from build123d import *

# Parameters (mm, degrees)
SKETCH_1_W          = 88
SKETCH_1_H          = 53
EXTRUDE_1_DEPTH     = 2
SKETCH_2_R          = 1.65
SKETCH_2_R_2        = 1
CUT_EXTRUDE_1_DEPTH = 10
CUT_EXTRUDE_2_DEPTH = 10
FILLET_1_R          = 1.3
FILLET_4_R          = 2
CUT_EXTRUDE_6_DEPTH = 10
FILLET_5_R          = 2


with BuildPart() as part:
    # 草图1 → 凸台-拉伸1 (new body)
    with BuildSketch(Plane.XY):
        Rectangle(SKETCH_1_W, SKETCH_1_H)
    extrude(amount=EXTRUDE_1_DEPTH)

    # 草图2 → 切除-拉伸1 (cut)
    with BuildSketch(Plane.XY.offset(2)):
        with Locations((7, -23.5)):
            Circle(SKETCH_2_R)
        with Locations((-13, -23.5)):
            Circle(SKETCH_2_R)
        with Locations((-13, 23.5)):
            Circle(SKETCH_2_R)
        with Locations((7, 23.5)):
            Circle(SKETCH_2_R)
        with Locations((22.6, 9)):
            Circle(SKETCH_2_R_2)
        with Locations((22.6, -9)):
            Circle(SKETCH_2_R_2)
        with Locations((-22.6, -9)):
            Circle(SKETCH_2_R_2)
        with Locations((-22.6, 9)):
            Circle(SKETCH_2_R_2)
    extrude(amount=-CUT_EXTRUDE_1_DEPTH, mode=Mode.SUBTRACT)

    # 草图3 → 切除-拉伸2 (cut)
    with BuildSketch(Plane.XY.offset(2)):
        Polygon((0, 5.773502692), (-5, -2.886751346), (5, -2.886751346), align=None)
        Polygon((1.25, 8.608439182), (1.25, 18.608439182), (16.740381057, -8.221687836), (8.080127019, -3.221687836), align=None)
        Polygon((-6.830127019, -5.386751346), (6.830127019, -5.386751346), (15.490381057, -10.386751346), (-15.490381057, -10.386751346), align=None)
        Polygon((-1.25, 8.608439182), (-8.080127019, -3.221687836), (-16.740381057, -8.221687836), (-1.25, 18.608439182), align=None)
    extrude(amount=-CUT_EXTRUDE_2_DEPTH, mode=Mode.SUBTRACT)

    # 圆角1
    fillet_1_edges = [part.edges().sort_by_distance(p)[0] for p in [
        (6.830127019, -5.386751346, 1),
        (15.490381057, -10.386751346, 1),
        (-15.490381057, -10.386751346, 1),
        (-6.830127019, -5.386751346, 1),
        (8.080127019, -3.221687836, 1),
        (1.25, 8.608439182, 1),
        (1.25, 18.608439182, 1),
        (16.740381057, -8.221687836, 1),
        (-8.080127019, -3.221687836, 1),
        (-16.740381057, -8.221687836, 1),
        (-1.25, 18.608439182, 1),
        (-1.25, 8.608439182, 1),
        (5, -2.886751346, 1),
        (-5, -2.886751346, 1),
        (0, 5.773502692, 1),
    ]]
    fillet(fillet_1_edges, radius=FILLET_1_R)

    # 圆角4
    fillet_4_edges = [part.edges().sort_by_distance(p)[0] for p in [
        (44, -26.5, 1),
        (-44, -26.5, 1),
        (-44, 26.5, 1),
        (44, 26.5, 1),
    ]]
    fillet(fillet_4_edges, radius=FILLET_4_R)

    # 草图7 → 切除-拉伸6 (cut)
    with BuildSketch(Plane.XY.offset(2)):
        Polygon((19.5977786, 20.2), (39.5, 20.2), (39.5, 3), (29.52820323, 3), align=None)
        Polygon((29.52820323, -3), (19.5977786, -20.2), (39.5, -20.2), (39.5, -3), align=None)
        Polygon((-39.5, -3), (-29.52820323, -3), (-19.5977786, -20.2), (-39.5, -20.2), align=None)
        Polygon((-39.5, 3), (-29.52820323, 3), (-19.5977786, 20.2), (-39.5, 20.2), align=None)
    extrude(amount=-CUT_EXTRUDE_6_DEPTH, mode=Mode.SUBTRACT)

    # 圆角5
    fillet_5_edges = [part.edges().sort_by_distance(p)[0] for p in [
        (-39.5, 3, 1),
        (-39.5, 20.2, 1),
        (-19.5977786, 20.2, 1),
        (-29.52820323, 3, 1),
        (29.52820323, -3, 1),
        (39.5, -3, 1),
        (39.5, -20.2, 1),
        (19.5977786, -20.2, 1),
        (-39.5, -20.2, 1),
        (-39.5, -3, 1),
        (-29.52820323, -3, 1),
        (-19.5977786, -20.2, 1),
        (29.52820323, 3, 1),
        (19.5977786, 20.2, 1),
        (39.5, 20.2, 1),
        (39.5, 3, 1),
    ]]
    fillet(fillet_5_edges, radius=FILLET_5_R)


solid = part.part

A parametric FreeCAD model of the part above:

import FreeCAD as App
import Part
import Sketcher
Q = App.Units.Quantity


def edges_at(feature, points):
    """Names of the edges that pass closest to the given points."""
    edges = feature.Shape.Edges
    near = lambda p: min(range(len(edges)), key=lambda i: edges[i].distToShape(Part.Vertex(*p))[0])
    return sorted({f"Edge{near(p) + 1}" for p in points})

doc = App.newDocument("Part")
params = doc.addObject("Spreadsheet::Sheet", "Params")
for row, (alias, value) in enumerate([
    ("sketch1_width", "88 mm"),
    ("sketch1_height", "53 mm"),
    ("pad1_length", "2 mm"),
    ("sketch2_diameter", "2 mm"),
    ("sketch2_diameter2", "3.3 mm"),
    ("pocket1_length", "10 mm"),
    ("sketch3_width", "10 mm"),
    ("pocket2_length", "10 mm"),
    ("fillet_radius", "1.3 mm"),
    ("fillet2_radius", "2 mm"),
    ("sketch4_height", "17.2 mm"),
    ("pocket3_length", "10 mm"),
    ("fillet3_radius", "2 mm"),
], start=1):
    params.set(f"A{row}", alias)
    params.set(f"B{row}", "=" + value)
    params.setAlias(f"B{row}", alias)

body = doc.addObject("PartDesign::Body", "Body")

# Sketch on XY plane
sketch1 = doc.addObject("Sketcher::SketchObject", "Sketch")
body.addObject(sketch1)
sketch1.AttachmentSupport = (doc.XY_Plane, [""])
sketch1.MapMode = "FlatFace"
sketch1.addGeometry([
    Part.LineSegment(App.Vector(-44, 26, 0), App.Vector(-44, -26, 0)),
    Part.LineSegment(App.Vector(-44, -26, 0), App.Vector(44, -26, 0)),
    Part.LineSegment(App.Vector(44, -26, 0), App.Vector(44, 26, 0)),
    Part.LineSegment(App.Vector(44, 26, 0), App.Vector(-44, 26, 0)),
], False)
sketch1.addConstraint([
    Sketcher.Constraint("Coincident", 0, 2, 1, 1),
    Sketcher.Constraint("Coincident", 1, 2, 2, 1),
    Sketcher.Constraint("Coincident", 2, 2, 3, 1),
    Sketcher.Constraint("Coincident", 3, 2, 0, 1),
    Sketcher.Constraint("Vertical", 0),
    Sketcher.Constraint("Horizontal", 1),
    Sketcher.Constraint("Vertical", 2),
    Sketcher.Constraint("Horizontal", 3),
    Sketcher.Constraint("Symmetric", 0, 2, 2, 2, -1, 1),
    Sketcher.Constraint("DistanceX", 1, 1, 1, 2, Q("88 mm")),
    Sketcher.Constraint("DistanceY", 0, 2, 0, 1, Q("53 mm")),
])
sketch1.setExpression("Constraints[9]", "Params.sketch1_width")
sketch1.setExpression("Constraints[10]", "Params.sketch1_height")
pad1 = doc.addObject("PartDesign::Pad", "Pad")
body.addObject(pad1)
pad1.Profile = sketch1
pad1.setExpression("Length", "Params.pad1_length")

# Sketch on XY plane
sketch2 = doc.addObject("Sketcher::SketchObject", "Sketch001")
body.addObject(sketch2)
sketch2.AttachmentSupport = (doc.XY_Plane, [""])
sketch2.MapMode = "FlatFace"
sketch2.AttachmentOffset = App.Placement(App.Vector(0, 0, 2), App.Rotation())
sketch2.addGeometry([
    Part.Circle(App.Vector(7, -23.5, 0), App.Vector(0, 0, 1), 1.6),  # 0
    Part.Circle(App.Vector(-13, -23.5, 0), App.Vector(0, 0, 1), 1.6),  # 1
    Part.Circle(App.Vector(-13, 23.5, 0), App.Vector(0, 0, 1), 1.6),  # 2
    Part.Circle(App.Vector(7, 23.5, 0), App.Vector(0, 0, 1), 1.6),  # 3
    Part.Circle(App.Vector(22.6, 9, 0), App.Vector(0, 0, 1), 1),  # 4
    Part.Circle(App.Vector(22.6, -9, 0), App.Vector(0, 0, 1), 1),  # 5
    Part.Circle(App.Vector(-22.6, -9, 0), App.Vector(0, 0, 1), 1),  # 6
    Part.Circle(App.Vector(-22.6, 9, 0), App.Vector(0, 0, 1), 1),  # 7
], False)
sketch2.addConstraint([
    Sketcher.Constraint("Equal", 0, 1),
    Sketcher.Constraint("Equal", 1, 2),
    Sketcher.Constraint("Equal", 2, 3),
    Sketcher.Constraint("Equal", 4, 5),
    Sketcher.Constraint("Equal", 5, 6),
    Sketcher.Constraint("Equal", 6, 7),
    Sketcher.Constraint("Symmetric", 4, 3, 6, 3, -1, 1),
    Sketcher.Constraint("Symmetric", 5, 3, 7, 3, -1, 1),
    Sketcher.Constraint("Symmetric", 5, 3, 6, 3, -2),
    Sketcher.Constraint("Symmetric", 1, 3, 2, 3, -1),
    Sketcher.Constraint("Symmetric", 0, 3, 3, 3, -1),
    Sketcher.Constraint("Horizontal", 0, 3, 1, 3),
    Sketcher.Constraint("Diameter", 4, Q("2 mm")),
    Sketcher.Constraint("Diameter", 0, Q("3.3 mm")),
    Sketcher.Constraint("DistanceX", -1, 1, 0, 3, Q("7 mm")),
    Sketcher.Constraint("DistanceX", 1, 3, -1, 1, Q("13 mm")),
    Sketcher.Constraint("DistanceY", -1, 1, 4, 3, Q("9 mm")),
    Sketcher.Constraint("DistanceY", 1, 3, 2, 3, Q("47 mm")),
    Sketcher.Constraint("DistanceX", -1, 1, 4, 3, Q("22.6 mm")),
])
sketch2.setExpression("Constraints[12]", "Params.sketch2_diameter")
sketch2.setExpression("Constraints[13]", "Params.sketch2_diameter2")
pocket1 = doc.addObject("PartDesign::Pocket", "Pocket")
body.addObject(pocket1)
pocket1.Profile = sketch2
pocket1.setExpression("Length", "Params.pocket1_length")

# Sketch on XY plane
sketch3 = doc.addObject("Sketcher::SketchObject", "Sketch002")
body.addObject(sketch3)
sketch3.AttachmentSupport = (doc.XY_Plane, [""])
sketch3.MapMode = "FlatFace"
sketch3.AttachmentOffset = App.Placement(App.Vector(0, 0, 2), App.Rotation())
sketch3.addGeometry([
    Part.LineSegment(App.Vector(0, 6, 0), App.Vector(-5, -3, 0)),  # 0
    Part.LineSegment(App.Vector(-5, -3, 0), App.Vector(5, -3, 0)),  # 1
    Part.LineSegment(App.Vector(5, -3, 0), App.Vector(0, 6, 0)),  # 2
    Part.LineSegment(App.Vector(1, 19, 0), App.Vector(1, 9, 0)),  # 3
    Part.LineSegment(App.Vector(1, 9, 0), App.Vector(8, -3, 0)),  # 4
    Part.LineSegment(App.Vector(8, -3, 0), App.Vector(17, -8, 0)),  # 5
    Part.LineSegment(App.Vector(17, -8, 0), App.Vector(1, 19, 0)),  # 6
    Part.LineSegment(App.Vector(7, -5, 0), App.Vector(-7, -5, 0)),  # 7
    Part.LineSegment(App.Vector(-7, -5, 0), App.Vector(-15, -10, 0)),  # 8
    Part.LineSegment(App.Vector(-15, -10, 0), App.Vector(15, -10, 0)),  # 9
    Part.LineSegment(App.Vector(15, -10, 0), App.Vector(7, -5, 0)),  # 10
    Part.LineSegment(App.Vector(-8, -3, 0), App.Vector(-1, 9, 0)),  # 11
    Part.LineSegment(App.Vector(-1, 9, 0), App.Vector(-1, 19, 0)),  # 12
    Part.LineSegment(App.Vector(-1, 19, 0), App.Vector(-17, -8, 0)),  # 13
    Part.LineSegment(App.Vector(-17, -8, 0), App.Vector(-8, -3, 0)),  # 14
], False)
sketch3.addConstraint([
    Sketcher.Constraint("Coincident", 0, 2, 1, 1),
    Sketcher.Constraint("Coincident", 1, 2, 2, 1),
    Sketcher.Constraint("Coincident", 2, 2, 0, 1),
    Sketcher.Constraint("Coincident", 3, 2, 4, 1),
    Sketcher.Constraint("Coincident", 4, 2, 5, 1),
    Sketcher.Constraint("Coincident", 5, 2, 6, 1),
    Sketcher.Constraint("Coincident", 6, 2, 3, 1),
    Sketcher.Constraint("Coincident", 7, 2, 8, 1),
    Sketcher.Constraint("Coincident", 8, 2, 9, 1),
    Sketcher.Constraint("Coincident", 9, 2, 10, 1),
    Sketcher.Constraint("Coincident", 10, 2, 7, 1),
    Sketcher.Constraint("Coincident", 11, 2, 12, 1),
    Sketcher.Constraint("Coincident", 12, 2, 13, 1),
    Sketcher.Constraint("Coincident", 13, 2, 14, 1),
    Sketcher.Constraint("Coincident", 14, 2, 11, 1),
    Sketcher.Constraint("Horizontal", 1),
    Sketcher.Constraint("Vertical", 3),
    Sketcher.Constraint("Horizontal", 7),
    Sketcher.Constraint("Horizontal", 9),
    Sketcher.Constraint("Vertical", 12),
    Sketcher.Constraint("Symmetric", 3, 2, 11, 2, -2),
    Sketcher.Constraint("Symmetric", 5, 2, 13, 2, -2),
    Sketcher.Constraint("Symmetric", 4, 2, 14, 2, -2),
    Sketcher.Constraint("PointOnObject", 2, 2, -2),
    Sketcher.Constraint("Parallel", 2, 4),
    Sketcher.Constraint("Perpendicular", 0, 5),
    Sketcher.Constraint("Parallel", 4, 6),
    Sketcher.Constraint("Perpendicular", 6, 8),
    Sketcher.Constraint("Parallel", 5, 10),
    Sketcher.Constraint("Perpendicular", 10, 11),
    Sketcher.Constraint("Parallel", 11, 13),
    Sketcher.Constraint("Equal", 1, 3),
    Sketcher.Constraint("Equal", 2, 5),
    Sketcher.Constraint("Equal", 5, 8),
    Sketcher.Constraint("DistanceX", 1, 1, 1, 2, Q("10 mm")),
    Sketcher.Constraint("DistanceY", 7, 2, 0, 2, Q("2.5 mm")),
    Sketcher.Constraint("DistanceX", 11, 2, 3, 2, Q("2.5 mm")),
    Sketcher.Constraint("DistanceX", 9, 2, 5, 2, Q("1.25 mm")),
    Sketcher.Constraint("DistanceX", 13, 2, 8, 2, Q("1.25 mm")),
    Sketcher.Constraint("DistanceX", 7, 2, 7, 1, Q("13.660254 mm")),
    Sketcher.Constraint("DistanceY", 0, 2, -1, 1, Q("2.886751 mm")),
    Sketcher.Constraint("DistanceY", -1, 1, 3, 2, Q("8.608439 mm")),
])
sketch3.setExpression("Constraints[34]", "Params.sketch3_width")
pocket2 = doc.addObject("PartDesign::Pocket", "Pocket001")
body.addObject(pocket2)
pocket2.Profile = sketch3
pocket2.setExpression("Length", "Params.pocket2_length")
doc.recompute()

fillet = doc.addObject("PartDesign::Fillet", "Fillet")
body.addObject(fillet)
fillet.Base = (pocket2, edges_at(pocket2, [
    (6.83, -5.387, 1),
    (15.49, -10.387, 1),
    (-15.49, -10.387, 1),
    (-6.83, -5.387, 1),
    (8.08, -3.222, 1),
    (1.25, 8.608, 1),
    (1.25, 18.608, 1),
    (16.74, -8.222, 1),
    (-8.08, -3.222, 1),
    (-16.74, -8.222, 1),
    (-1.25, 18.608, 1),
    (-1.25, 8.608, 1),
    (5, -2.887, 1),
    (-5, -2.887, 1),
    (0, 5.774, 1),
]))
fillet.setExpression("Radius", "Params.fillet_radius")
doc.recompute()

fillet2 = doc.addObject("PartDesign::Fillet", "Fillet001")
body.addObject(fillet2)
fillet2.Base = (fillet, edges_at(fillet, [
    (44, -26.5, 1),
    (-44, -26.5, 1),
    (-44, 26.5, 1),
    (44, 26.5, 1),
]))
fillet2.setExpression("Radius", "Params.fillet2_radius")

# Sketch on XY plane
sketch4 = doc.addObject("Sketcher::SketchObject", "Sketch003")
body.addObject(sketch4)
sketch4.AttachmentSupport = (doc.XY_Plane, [""])
sketch4.MapMode = "FlatFace"
sketch4.AttachmentOffset = App.Placement(App.Vector(0, 0, 2), App.Rotation())
sketch4.addGeometry([
    Part.LineSegment(App.Vector(40, 20, 0), App.Vector(20, 20, 0)),  # 0
    Part.LineSegment(App.Vector(20, 20, 0), App.Vector(30, 3, 0)),  # 1
    Part.LineSegment(App.Vector(30, 3, 0), App.Vector(40, 3, 0)),  # 2
    Part.LineSegment(App.Vector(40, 3, 0), App.Vector(40, 20, 0)),  # 3
    Part.LineSegment(App.Vector(30, -3, 0), App.Vector(20, -20, 0)),  # 4
    Part.LineSegment(App.Vector(20, -20, 0), App.Vector(40, -20, 0)),  # 5
    Part.LineSegment(App.Vector(40, -20, 0), App.Vector(40, -3, 0)),  # 6
    Part.LineSegment(App.Vector(40, -3, 0), App.Vector(30, -3, 0)),  # 7
    Part.LineSegment(App.Vector(-30, -3, 0), App.Vector(-40, -3, 0)),  # 8
    Part.LineSegment(App.Vector(-40, -3, 0), App.Vector(-40, -20, 0)),  # 9
    Part.LineSegment(App.Vector(-40, -20, 0), App.Vector(-20, -20, 0)),  # 10
    Part.LineSegment(App.Vector(-20, -20, 0), App.Vector(-30, -3, 0)),  # 11
    Part.LineSegment(App.Vector(-40, 3, 0), App.Vector(-30, 3, 0)),  # 12
    Part.LineSegment(App.Vector(-30, 3, 0), App.Vector(-20, 20, 0)),  # 13
    Part.LineSegment(App.Vector(-20, 20, 0), App.Vector(-40, 20, 0)),  # 14
    Part.LineSegment(App.Vector(-40, 20, 0), App.Vector(-40, 3, 0)),  # 15
], False)
sketch4.addConstraint([
    Sketcher.Constraint("Coincident", 0, 2, 1, 1),
    Sketcher.Constraint("Coincident", 1, 2, 2, 1),
    Sketcher.Constraint("Coincident", 2, 2, 3, 1),
    Sketcher.Constraint("Coincident", 3, 2, 0, 1),
    Sketcher.Constraint("Coincident", 4, 2, 5, 1),
    Sketcher.Constraint("Coincident", 5, 2, 6, 1),
    Sketcher.Constraint("Coincident", 6, 2, 7, 1),
    Sketcher.Constraint("Coincident", 7, 2, 4, 1),
    Sketcher.Constraint("Coincident", 8, 2, 9, 1),
    Sketcher.Constraint("Coincident", 9, 2, 10, 1),
    Sketcher.Constraint("Coincident", 10, 2, 11, 1),
    Sketcher.Constraint("Coincident", 11, 2, 8, 1),
    Sketcher.Constraint("Coincident", 12, 2, 13, 1),
    Sketcher.Constraint("Coincident", 13, 2, 14, 1),
    Sketcher.Constraint("Coincident", 14, 2, 15, 1),
    Sketcher.Constraint("Coincident", 15, 2, 12, 1),
    Sketcher.Constraint("Horizontal", 0),
    Sketcher.Constraint("Horizontal", 2),
    Sketcher.Constraint("Vertical", 3),
    Sketcher.Constraint("Horizontal", 5),
    Sketcher.Constraint("Vertical", 6),
    Sketcher.Constraint("Horizontal", 7),
    Sketcher.Constraint("Horizontal", 8),
    Sketcher.Constraint("Vertical", 9),
    Sketcher.Constraint("Horizontal", 10),
    Sketcher.Constraint("Horizontal", 12),
    Sketcher.Constraint("Horizontal", 14),
    Sketcher.Constraint("Vertical", 15),
    Sketcher.Constraint("Symmetric", 2, 2, 8, 2, -1, 1),
    Sketcher.Constraint("Symmetric", 0, 2, 10, 2, -1, 1),
    Sketcher.Constraint("Symmetric", 7, 2, 12, 2, -1, 1),
    Sketcher.Constraint("Symmetric", 4, 2, 13, 2, -1, 1),
    Sketcher.Constraint("Symmetric", 6, 2, 8, 2, -2),
    Sketcher.Constraint("Symmetric", 4, 2, 10, 2, -2),
    Sketcher.Constraint("Parallel", 1, 11),
    Sketcher.Constraint("Vertical", 1, 2, 7, 2),
    Sketcher.Constraint("Vertical", 9, 2, 14, 2),
    Sketcher.Constraint("Angle", 1, Q("-60 deg")),
    Sketcher.Constraint("DistanceY", 3, 1, 3, 2, Q("17.2 mm")),
    Sketcher.Constraint("DistanceY", -1, 1, 1, 2, Q("3 mm")),
    Sketcher.Constraint("DistanceX", 8, 2, 6, 2, Q("79 mm")),
    Sketcher.Constraint("DistanceX", 0, 2, 0, 1, Q("19.902221 mm")),
])
sketch4.setExpression("Constraints[38]", "Params.sketch4_height")
pocket3 = doc.addObject("PartDesign::Pocket", "Pocket002")
body.addObject(pocket3)
pocket3.Profile = sketch4
pocket3.setExpression("Length", "Params.pocket3_length")
doc.recompute()

fillet3 = doc.addObject("PartDesign::Fillet", "Fillet002")
body.addObject(fillet3)
fillet3.Base = (pocket3, edges_at(pocket3, [
    (-39.5, 3, 1),
    (-39.5, 20.2, 1),
    (-19.598, 20.2, 1),
    (-29.528, 3, 1),
    (29.528, -3, 1),
    (39.5, -3, 1),
    (39.5, -20.2, 1),
    (19.598, -20.2, 1),
    (-39.5, -20.2, 1),
    (-39.5, -3, 1),
    (-29.528, -3, 1),
    (-19.598, -20.2, 1),
    (29.528, 3, 1),
    (19.598, 20.2, 1),
    (39.5, 20.2, 1),
    (39.5, 3, 1),
]))
fillet3.setExpression("Radius", "Params.fillet3_radius")

doc.recompute()
